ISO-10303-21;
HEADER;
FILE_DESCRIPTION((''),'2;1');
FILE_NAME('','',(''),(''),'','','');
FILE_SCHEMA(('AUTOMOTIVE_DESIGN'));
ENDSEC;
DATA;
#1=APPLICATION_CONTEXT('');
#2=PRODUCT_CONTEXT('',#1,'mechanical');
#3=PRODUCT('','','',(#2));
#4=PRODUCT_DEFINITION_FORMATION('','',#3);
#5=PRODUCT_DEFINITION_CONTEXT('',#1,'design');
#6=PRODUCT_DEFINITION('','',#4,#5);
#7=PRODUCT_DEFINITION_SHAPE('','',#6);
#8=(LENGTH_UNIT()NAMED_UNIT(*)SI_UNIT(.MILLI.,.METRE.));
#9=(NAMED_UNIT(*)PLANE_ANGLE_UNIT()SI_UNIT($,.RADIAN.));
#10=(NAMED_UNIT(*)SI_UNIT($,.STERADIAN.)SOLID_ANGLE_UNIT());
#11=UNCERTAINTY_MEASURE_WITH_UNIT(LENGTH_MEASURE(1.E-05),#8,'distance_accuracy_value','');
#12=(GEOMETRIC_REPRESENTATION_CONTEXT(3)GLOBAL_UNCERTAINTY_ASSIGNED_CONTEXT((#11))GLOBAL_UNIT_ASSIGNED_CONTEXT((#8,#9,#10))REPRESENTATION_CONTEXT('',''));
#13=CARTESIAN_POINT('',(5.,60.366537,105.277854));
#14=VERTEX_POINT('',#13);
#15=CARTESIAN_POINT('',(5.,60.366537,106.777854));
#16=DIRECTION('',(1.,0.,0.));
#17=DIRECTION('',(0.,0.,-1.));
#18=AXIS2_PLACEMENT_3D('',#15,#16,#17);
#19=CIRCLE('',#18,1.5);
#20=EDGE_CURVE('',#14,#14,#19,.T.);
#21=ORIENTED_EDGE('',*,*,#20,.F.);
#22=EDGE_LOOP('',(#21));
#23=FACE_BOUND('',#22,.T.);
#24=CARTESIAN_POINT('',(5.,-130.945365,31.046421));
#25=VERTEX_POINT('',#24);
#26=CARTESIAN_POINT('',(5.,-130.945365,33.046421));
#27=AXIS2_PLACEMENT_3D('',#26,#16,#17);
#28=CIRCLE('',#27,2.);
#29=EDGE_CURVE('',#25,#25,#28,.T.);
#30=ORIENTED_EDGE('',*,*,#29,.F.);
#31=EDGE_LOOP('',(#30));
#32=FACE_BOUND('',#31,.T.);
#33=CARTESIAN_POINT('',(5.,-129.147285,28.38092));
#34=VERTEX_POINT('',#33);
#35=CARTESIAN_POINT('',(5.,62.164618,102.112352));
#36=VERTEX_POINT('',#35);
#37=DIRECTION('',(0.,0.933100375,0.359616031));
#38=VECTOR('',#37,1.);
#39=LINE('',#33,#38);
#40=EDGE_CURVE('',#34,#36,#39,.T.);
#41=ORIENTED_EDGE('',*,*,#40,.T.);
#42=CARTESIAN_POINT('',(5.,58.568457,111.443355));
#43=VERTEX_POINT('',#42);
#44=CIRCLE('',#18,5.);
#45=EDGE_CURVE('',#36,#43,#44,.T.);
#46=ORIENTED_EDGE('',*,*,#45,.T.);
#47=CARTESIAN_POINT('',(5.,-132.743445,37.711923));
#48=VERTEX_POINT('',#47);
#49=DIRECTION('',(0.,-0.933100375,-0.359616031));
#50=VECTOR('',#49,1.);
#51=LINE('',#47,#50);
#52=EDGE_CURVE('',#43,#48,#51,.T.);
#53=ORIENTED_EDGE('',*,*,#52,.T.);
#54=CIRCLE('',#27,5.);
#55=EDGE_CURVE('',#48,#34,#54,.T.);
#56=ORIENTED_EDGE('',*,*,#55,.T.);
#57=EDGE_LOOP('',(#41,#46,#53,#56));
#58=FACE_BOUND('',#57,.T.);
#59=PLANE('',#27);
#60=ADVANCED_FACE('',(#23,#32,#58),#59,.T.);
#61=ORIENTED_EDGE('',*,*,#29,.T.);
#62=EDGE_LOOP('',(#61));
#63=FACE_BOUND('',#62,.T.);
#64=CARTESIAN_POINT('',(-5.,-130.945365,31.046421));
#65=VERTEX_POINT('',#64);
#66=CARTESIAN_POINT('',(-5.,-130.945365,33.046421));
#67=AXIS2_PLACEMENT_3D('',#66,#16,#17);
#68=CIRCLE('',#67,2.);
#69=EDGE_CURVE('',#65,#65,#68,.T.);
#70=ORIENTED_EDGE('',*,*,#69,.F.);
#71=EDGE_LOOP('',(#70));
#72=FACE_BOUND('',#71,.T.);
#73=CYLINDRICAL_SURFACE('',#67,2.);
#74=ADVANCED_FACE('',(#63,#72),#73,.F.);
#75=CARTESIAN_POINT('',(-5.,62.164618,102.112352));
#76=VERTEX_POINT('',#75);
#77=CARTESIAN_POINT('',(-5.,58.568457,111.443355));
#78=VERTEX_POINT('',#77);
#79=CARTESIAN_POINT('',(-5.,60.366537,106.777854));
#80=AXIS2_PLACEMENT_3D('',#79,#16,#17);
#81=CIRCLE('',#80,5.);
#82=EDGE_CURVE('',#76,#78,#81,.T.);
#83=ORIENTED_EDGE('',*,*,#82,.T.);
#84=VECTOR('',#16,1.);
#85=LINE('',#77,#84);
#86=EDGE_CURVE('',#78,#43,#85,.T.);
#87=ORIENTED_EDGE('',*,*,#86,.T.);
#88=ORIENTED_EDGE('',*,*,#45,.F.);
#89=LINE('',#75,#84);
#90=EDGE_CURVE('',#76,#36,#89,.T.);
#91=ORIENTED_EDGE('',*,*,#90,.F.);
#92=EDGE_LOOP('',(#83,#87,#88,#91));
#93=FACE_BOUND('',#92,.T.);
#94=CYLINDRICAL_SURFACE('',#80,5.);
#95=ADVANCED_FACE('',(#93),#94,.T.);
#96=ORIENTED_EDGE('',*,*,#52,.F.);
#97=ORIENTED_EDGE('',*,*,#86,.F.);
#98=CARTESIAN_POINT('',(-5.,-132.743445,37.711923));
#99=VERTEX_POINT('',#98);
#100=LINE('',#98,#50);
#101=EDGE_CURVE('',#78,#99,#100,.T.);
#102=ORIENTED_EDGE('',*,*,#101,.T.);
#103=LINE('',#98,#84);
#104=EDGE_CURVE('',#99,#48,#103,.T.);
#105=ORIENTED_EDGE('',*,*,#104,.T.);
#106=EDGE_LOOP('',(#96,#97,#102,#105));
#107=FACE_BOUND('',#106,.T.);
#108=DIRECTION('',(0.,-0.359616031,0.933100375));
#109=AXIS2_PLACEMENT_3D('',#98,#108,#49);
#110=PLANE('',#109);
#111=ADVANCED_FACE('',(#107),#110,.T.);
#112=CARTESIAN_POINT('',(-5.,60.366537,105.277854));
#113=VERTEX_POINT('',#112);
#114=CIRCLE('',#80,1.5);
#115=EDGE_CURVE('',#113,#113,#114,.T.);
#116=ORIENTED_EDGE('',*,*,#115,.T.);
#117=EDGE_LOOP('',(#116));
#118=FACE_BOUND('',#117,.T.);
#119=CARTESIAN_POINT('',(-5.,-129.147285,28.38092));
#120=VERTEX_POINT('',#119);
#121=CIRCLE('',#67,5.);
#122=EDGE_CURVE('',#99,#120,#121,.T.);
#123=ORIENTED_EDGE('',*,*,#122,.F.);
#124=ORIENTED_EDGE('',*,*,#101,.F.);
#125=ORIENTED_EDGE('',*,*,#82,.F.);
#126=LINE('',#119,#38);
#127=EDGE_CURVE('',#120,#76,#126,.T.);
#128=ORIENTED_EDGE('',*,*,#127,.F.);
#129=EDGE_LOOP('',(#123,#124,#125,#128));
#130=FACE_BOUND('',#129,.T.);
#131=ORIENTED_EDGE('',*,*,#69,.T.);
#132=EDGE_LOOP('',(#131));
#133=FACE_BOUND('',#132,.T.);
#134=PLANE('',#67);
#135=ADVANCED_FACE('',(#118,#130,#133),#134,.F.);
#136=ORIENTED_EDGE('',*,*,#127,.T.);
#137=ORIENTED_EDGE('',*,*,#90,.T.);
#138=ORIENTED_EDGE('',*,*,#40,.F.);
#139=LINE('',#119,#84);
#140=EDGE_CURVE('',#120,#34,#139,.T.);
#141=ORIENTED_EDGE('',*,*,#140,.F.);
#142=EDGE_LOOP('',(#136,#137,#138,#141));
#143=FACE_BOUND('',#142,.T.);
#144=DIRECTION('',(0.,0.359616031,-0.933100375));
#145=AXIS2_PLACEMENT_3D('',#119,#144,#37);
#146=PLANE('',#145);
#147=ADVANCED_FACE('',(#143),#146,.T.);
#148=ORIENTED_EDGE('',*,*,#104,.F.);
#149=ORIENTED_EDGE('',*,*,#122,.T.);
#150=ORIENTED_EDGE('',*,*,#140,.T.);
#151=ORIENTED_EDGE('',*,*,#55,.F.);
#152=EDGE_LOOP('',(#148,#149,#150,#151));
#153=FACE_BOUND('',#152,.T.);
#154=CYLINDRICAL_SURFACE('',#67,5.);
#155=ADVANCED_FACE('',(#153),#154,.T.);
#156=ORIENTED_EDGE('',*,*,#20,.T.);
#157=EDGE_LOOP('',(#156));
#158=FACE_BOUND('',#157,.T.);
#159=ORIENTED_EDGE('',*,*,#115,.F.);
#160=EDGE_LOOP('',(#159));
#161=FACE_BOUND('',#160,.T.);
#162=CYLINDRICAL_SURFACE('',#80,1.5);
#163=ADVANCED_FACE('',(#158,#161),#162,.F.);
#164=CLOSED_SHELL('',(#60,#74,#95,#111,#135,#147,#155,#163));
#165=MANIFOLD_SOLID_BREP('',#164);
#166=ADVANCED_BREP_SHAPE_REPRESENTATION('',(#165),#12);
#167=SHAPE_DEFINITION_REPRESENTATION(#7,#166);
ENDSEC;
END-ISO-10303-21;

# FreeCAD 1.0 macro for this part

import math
import FreeCAD as App
import Part
import Sketcher

doc = App.newDocument("Part")
body = doc.addObject("PartDesign::Body", "Body")

sketch1 = doc.addObject("Sketcher::SketchObject", "Sketch")
body.addObject(sketch1)
sketch1.AttachmentSupport = (doc.YZ_Plane, [""])
sketch1.MapMode = "FlatFace"
sketch1.addGeometry(Part.LineSegment(App.Vector(58.568457, 111.443355, 0), App.Vector(-132.743445, 37.711923, 0)), False)
sketch1.addGeometry(Part.ArcOfCircle(Part.Circle(App.Vector(-130.945365, 33.046421, 0), App.Vector(0, 0, 1), 5), math.radians(111.076617), math.radians(291.076617)), False)
sketch1.addGeometry(Part.LineSegment(App.Vector(-129.147285, 28.38092, 0), App.Vector(62.164618, 102.112352, 0)), False)
sketch1.addGeometry(Part.ArcOfCircle(Part.Circle(App.Vector(60.366537, 106.777854, 0), App.Vector(0, 0, 1), 5), math.radians(-68.923383), math.radians(111.076617)), False)
sketch1.addGeometry(Part.Circle(App.Vector(-130.945365, 33.046421, 0), App.Vector(0, 0, 1), 2), False)
sketch1.addGeometry(Part.Circle(App.Vector(60.366537, 106.777854, 0), App.Vector(0, 0, 1), 1.5), False)
sketch1.addConstraint(Sketcher.Constraint("Coincident", 0, 2, 1, 1))
sketch1.addConstraint(Sketcher.Constraint("Coincident", 1, 2, 2, 1))
sketch1.addConstraint(Sketcher.Constraint("Coincident", 2, 2, 3, 1))
sketch1.addConstraint(Sketcher.Constraint("Coincident", 3, 2, 0, 1))
sketch1.addConstraint(Sketcher.Constraint("Coincident", 4, 3, 1, 3))
sketch1.addConstraint(Sketcher.Constraint("Coincident", 5, 3, 3, 3))
sketch1.addConstraint(Sketcher.Constraint("Diameter", 4, 4.0))
sketch1.addConstraint(Sketcher.Constraint("Diameter", 5, 3.0))
sketch1.addConstraint(Sketcher.Constraint("Radius", 1, 5.0))
sketch1.addConstraint(Sketcher.Constraint("Radius", 3, 5.0))
sketch1.addConstraint(Sketcher.Constraint("DistanceY", 4, 3, 0, 2, 4.665502))
sketch1.addConstraint(Sketcher.Constraint("DistanceY", 1, 2, 1, 3, 4.665502))
sketch1.addConstraint(Sketcher.Constraint("DistanceY", 2, 2, 3, 3, 4.665502))
sketch1.addConstraint(Sketcher.Constraint("DistanceY", 3, 3, 3, 2, 4.665502))
sketch1.addConstraint(Sketcher.Constraint("DistanceY", -1, 1, 1, 3, 33.046421))
sketch1.addConstraint(Sketcher.Constraint("DistanceY", -1, 1, 2, 2, 102.112352))
sketch1.addConstraint(Sketcher.Constraint("DistanceX", 1, 2, 3, 3, 189.513822))
sketch1.addConstraint(Sketcher.Constraint("DistanceX", 1, 3, -1, 1, 130.945365))
pad1 = doc.addObject("PartDesign::Pad", "Pad")
body.addObject(pad1)
pad1.Profile = sketch1
pad1.Type = "TwoLengths"
pad1.Length = 5
pad1.Length2 = 5

doc.recompute()
